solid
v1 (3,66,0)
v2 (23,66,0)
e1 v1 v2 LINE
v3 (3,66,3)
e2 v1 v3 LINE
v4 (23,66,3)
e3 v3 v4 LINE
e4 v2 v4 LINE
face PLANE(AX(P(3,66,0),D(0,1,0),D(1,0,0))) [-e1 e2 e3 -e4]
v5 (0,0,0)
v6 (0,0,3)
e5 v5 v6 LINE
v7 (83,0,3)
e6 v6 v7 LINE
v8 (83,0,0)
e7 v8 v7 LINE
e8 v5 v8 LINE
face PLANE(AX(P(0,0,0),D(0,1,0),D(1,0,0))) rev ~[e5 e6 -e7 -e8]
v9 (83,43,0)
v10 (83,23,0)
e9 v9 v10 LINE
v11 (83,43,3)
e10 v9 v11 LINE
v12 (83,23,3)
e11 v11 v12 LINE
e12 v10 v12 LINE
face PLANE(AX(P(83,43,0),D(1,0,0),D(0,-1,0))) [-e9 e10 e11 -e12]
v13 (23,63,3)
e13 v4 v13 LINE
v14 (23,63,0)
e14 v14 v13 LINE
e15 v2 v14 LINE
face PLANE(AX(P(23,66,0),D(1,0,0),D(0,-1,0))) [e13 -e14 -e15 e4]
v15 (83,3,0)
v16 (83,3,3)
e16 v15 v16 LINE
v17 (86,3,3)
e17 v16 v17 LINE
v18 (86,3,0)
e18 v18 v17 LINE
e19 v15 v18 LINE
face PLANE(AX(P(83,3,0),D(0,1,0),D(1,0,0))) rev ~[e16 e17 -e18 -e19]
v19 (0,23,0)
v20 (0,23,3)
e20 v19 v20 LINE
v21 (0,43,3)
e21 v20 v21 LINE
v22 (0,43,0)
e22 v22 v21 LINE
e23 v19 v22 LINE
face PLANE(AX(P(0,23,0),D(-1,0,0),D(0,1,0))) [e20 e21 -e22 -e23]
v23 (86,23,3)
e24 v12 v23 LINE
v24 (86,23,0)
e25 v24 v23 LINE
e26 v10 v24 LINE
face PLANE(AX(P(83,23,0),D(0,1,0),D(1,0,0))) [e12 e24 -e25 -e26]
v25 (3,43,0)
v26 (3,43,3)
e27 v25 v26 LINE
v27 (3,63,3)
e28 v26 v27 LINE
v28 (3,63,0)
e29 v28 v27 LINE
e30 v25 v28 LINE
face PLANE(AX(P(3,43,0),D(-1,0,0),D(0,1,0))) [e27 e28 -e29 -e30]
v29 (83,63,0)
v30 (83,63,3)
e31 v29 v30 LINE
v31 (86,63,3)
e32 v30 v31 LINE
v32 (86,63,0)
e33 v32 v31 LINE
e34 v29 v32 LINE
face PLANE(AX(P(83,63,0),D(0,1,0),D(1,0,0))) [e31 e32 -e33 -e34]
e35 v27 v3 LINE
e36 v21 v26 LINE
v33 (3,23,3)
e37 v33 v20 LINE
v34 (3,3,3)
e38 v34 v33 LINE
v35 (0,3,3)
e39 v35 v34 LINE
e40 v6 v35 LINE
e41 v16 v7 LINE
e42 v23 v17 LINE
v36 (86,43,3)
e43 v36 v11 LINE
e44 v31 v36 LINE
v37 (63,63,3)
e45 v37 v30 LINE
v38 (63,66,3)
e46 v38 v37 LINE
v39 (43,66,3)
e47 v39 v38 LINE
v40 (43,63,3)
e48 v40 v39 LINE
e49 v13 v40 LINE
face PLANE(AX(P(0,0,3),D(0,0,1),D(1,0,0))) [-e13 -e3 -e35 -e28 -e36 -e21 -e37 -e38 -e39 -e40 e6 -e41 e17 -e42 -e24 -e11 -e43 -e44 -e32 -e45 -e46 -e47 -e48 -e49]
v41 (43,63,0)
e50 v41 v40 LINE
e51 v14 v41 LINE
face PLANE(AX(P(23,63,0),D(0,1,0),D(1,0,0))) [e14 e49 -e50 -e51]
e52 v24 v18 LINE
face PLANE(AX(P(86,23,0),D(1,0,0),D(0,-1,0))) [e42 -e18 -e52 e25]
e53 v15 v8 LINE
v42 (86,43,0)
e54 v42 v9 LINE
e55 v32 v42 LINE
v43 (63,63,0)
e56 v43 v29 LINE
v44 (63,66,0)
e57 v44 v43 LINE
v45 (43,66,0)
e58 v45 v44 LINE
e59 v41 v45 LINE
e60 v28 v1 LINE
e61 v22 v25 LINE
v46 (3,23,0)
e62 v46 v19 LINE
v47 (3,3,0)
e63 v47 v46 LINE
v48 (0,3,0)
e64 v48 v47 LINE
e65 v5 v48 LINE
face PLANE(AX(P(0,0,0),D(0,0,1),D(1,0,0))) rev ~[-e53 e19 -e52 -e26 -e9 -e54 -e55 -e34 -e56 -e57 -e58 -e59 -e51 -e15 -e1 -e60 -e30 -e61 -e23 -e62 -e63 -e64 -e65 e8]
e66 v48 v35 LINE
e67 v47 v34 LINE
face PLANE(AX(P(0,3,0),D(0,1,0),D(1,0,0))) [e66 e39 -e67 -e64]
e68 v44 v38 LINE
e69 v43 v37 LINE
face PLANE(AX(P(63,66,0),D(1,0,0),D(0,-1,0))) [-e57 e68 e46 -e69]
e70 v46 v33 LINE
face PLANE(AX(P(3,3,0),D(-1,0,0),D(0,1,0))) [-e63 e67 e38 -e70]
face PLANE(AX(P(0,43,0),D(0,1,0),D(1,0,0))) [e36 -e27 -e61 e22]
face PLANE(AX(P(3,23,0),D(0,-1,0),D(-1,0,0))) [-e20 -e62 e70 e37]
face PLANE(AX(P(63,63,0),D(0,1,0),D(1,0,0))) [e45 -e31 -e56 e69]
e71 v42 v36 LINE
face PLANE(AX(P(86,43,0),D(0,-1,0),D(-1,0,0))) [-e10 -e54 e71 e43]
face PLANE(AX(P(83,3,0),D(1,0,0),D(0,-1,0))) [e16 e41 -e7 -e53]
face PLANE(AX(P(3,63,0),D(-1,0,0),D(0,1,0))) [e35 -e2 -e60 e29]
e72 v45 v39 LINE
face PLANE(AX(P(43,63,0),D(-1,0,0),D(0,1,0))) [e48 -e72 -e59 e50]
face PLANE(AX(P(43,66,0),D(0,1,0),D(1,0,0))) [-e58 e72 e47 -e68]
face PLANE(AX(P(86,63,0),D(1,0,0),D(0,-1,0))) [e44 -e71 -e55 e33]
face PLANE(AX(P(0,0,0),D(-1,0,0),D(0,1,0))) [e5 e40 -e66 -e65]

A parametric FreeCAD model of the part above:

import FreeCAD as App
import Part
import Sketcher

doc = App.newDocument("Part")
params = doc.addObject("Spreadsheet::Sheet", "Params")
for row, (alias, value) in enumerate([
    ("sketch1_width", "83 mm"),
    ("sketch1_width2", "3 mm"),
    ("pad1_length", "3 mm"),
], start=1):
    params.set(f"A{row}", alias)
    params.set(f"B{row}", "=" + value)
    params.setAlias(f"B{row}", alias)

body = doc.addObject("PartDesign::Body", "Body")

# Sketch on XY plane
sketch1 = doc.addObject("Sketcher::SketchObject", "Sketch")
body.addObject(sketch1)
sketch1.AttachmentSupport = (doc.XY_Plane, [""])
sketch1.MapMode = "FlatFace"
sketch1.addGeometry([
    Part.LineSegment(App.Vector(0, 3, 0), App.Vector(0, 0, 0)),  # 0
    Part.LineSegment(App.Vector(0, 0, 0), App.Vector(83, 0, 0)),  # 1
    Part.LineSegment(App.Vector(83, 0, 0), App.Vector(83, 3, 0)),  # 2
    Part.LineSegment(App.Vector(83, 3, 0), App.Vector(86, 3, 0)),  # 3
    Part.LineSegment(App.Vector(86, 3, 0), App.Vector(86, 23, 0)),  # 4
    Part.LineSegment(App.Vector(86, 23, 0), App.Vector(83, 23, 0)),  # 5
    Part.LineSegment(App.Vector(83, 23, 0), App.Vector(83, 43, 0)),  # 6
    Part.LineSegment(App.Vector(83, 43, 0), App.Vector(86, 43, 0)),  # 7
    Part.LineSegment(App.Vector(86, 43, 0), App.Vector(86, 63, 0)),  # 8
    Part.LineSegment(App.Vector(86, 63, 0), App.Vector(63, 63, 0)),  # 9
    Part.LineSegment(App.Vector(63, 63, 0), App.Vector(63, 66, 0)),  # 10
    Part.LineSegment(App.Vector(63, 66, 0), App.Vector(43, 66, 0)),  # 11
    Part.LineSegment(App.Vector(43, 66, 0), App.Vector(43, 63, 0)),  # 12
    Part.LineSegment(App.Vector(43, 63, 0), App.Vector(23, 63, 0)),  # 13
    Part.LineSegment(App.Vector(23, 63, 0), App.Vector(23, 66, 0)),  # 14
    Part.LineSegment(App.Vector(23, 66, 0), App.Vector(3, 66, 0)),  # 15
    Part.LineSegment(App.Vector(3, 66, 0), App.Vector(3, 43, 0)),  # 16
    Part.LineSegment(App.Vector(3, 43, 0), App.Vector(0, 43, 0)),  # 17
    Part.LineSegment(App.Vector(0, 43, 0), App.Vector(0, 23, 0)),  # 18
    Part.LineSegment(App.Vector(0, 23, 0), App.Vector(3, 23, 0)),  # 19
    Part.LineSegment(App.Vector(3, 23, 0), App.Vector(3, 3, 0)),  # 20
    Part.LineSegment(App.Vector(3, 3, 0), App.Vector(0, 3, 0)),  # 21
], False)
sketch1.addConstraint([
    Sketcher.Constraint("Coincident", 0, 2, 1, 1),
    Sketcher.Constraint("Coincident", 1, 2, 2, 1),
    Sketcher.Constraint("Coincident", 2, 2, 3, 1),
    Sketcher.Constraint("Coincident", 3, 2, 4, 1),
    Sketcher.Constraint("Coincident", 4, 2, 5, 1),
    Sketcher.Constraint("Coincident", 5, 2, 6, 1),
    Sketcher.Constraint("Coincident", 6, 2, 7, 1),
    Sketcher.Constraint("Coincident", 7, 2, 8, 1),
    Sketcher.Constraint("Coincident", 8, 2, 9, 1),
    Sketcher.Constraint("Coincident", 9, 2, 10, 1),
    Sketcher.Constraint("Coincident", 10, 2, 11, 1),
    Sketcher.Constraint("Coincident", 11, 2, 12, 1),
    Sketcher.Constraint("Coincident", 12, 2, 13, 1),
    Sketcher.Constraint("Coincident", 13, 2, 14, 1),
    Sketcher.Constraint("Coincident", 14, 2, 15, 1),
    Sketcher.Constraint("Coincident", 15, 2, 16, 1),
    Sketcher.Constraint("Coincident", 16, 2, 17, 1),
    Sketcher.Constraint("Coincident", 17, 2, 18, 1),
    Sketcher.Constraint("Coincident", 18, 2, 19, 1),
    Sketcher.Constraint("Coincident", 19, 2, 20, 1),
    Sketcher.Constraint("Coincident", 20, 2, 21, 1),
    Sketcher.Constraint("Coincident", 21, 2, 0, 1),
    Sketcher.Constraint("Vertical", 0),
    Sketcher.Constraint("Horizontal", 1),
    Sketcher.Constraint("Vertical", 2),
    Sketcher.Constraint("Horizontal", 3),
    Sketcher.Constraint("Vertical", 4),
    Sketcher.Constraint("Horizontal", 5),
    Sketcher.Constraint("Vertical", 6),
    Sketcher.Constraint("Horizontal", 7),
    Sketcher.Constraint("Vertical", 8),
    Sketcher.Constraint("Horizontal", 9),
    Sketcher.Constraint("Vertical", 10),
    Sketcher.Constraint("Horizontal", 11),
    Sketcher.Constraint("Vertical", 12),
    Sketcher.Constraint("Horizontal", 13),
    Sketcher.Constraint("Vertical", 14),
    Sketcher.Constraint("Horizontal", 15),
    Sketcher.Constraint("Vertical", 16),
    Sketcher.Constraint("Horizontal", 17),
    Sketcher.Constraint("Vertical", 18),
    Sketcher.Constraint("Horizontal", 19),
    Sketcher.Constraint("Vertical", 20),
    Sketcher.Constraint("Horizontal", 21),
    Sketcher.Constraint("Coincident", 0, 2, -1, 1),
    Sketcher.Constraint("PointOnObject", 17, 2, -2),
    Sketcher.Constraint("Horizontal", 9, 2, 12, 2),
    Sketcher.Constraint("Horizontal", 11, 2, 14, 2),
    Sketcher.Constraint("Horizontal", 7, 2, 16, 2),
    Sketcher.Constraint("Horizontal", 5, 2, 18, 2),
    Sketcher.Constraint("Horizontal", 3, 2, 20, 2),
    Sketcher.Constraint("Vertical", 2, 2, 5, 2),
    Sketcher.Constraint("Vertical", 4, 2, 7, 2),
    Sketcher.Constraint("Vertical", 16, 2, 19, 2),
    Sketcher.Constraint("Equal", 11, 13),
    Sketcher.Constraint("Equal", 13, 15),
    Sketcher.Constraint("Equal", 7, 17),
    Sketcher.Constraint("Equal", 21, 0),
    Sketcher.Constraint("Equal", 15, 4),
    Sketcher.Constraint("Equal", 4, 6),
    Sketcher.Constraint("Equal", 6, 8),
    Sketcher.Constraint("Equal", 2, 10),
    Sketcher.Constraint("Equal", 9, 16),
    Sketcher.Constraint("DistanceX", 1, 1, 1, 2, 83.0),
    Sketcher.Constraint("DistanceX", 3, 1, 3, 2, 3.0),
])
sketch1.setExpression("Constraints[63]", "Params.sketch1_width")
sketch1.setExpression("Constraints[64]", "Params.sketch1_width2")
pad1 = doc.addObject("PartDesign::Pad", "Pad")
body.addObject(pad1)
pad1.Profile = sketch1
pad1.setExpression("Length", "Params.pad1_length")

doc.recompute()
